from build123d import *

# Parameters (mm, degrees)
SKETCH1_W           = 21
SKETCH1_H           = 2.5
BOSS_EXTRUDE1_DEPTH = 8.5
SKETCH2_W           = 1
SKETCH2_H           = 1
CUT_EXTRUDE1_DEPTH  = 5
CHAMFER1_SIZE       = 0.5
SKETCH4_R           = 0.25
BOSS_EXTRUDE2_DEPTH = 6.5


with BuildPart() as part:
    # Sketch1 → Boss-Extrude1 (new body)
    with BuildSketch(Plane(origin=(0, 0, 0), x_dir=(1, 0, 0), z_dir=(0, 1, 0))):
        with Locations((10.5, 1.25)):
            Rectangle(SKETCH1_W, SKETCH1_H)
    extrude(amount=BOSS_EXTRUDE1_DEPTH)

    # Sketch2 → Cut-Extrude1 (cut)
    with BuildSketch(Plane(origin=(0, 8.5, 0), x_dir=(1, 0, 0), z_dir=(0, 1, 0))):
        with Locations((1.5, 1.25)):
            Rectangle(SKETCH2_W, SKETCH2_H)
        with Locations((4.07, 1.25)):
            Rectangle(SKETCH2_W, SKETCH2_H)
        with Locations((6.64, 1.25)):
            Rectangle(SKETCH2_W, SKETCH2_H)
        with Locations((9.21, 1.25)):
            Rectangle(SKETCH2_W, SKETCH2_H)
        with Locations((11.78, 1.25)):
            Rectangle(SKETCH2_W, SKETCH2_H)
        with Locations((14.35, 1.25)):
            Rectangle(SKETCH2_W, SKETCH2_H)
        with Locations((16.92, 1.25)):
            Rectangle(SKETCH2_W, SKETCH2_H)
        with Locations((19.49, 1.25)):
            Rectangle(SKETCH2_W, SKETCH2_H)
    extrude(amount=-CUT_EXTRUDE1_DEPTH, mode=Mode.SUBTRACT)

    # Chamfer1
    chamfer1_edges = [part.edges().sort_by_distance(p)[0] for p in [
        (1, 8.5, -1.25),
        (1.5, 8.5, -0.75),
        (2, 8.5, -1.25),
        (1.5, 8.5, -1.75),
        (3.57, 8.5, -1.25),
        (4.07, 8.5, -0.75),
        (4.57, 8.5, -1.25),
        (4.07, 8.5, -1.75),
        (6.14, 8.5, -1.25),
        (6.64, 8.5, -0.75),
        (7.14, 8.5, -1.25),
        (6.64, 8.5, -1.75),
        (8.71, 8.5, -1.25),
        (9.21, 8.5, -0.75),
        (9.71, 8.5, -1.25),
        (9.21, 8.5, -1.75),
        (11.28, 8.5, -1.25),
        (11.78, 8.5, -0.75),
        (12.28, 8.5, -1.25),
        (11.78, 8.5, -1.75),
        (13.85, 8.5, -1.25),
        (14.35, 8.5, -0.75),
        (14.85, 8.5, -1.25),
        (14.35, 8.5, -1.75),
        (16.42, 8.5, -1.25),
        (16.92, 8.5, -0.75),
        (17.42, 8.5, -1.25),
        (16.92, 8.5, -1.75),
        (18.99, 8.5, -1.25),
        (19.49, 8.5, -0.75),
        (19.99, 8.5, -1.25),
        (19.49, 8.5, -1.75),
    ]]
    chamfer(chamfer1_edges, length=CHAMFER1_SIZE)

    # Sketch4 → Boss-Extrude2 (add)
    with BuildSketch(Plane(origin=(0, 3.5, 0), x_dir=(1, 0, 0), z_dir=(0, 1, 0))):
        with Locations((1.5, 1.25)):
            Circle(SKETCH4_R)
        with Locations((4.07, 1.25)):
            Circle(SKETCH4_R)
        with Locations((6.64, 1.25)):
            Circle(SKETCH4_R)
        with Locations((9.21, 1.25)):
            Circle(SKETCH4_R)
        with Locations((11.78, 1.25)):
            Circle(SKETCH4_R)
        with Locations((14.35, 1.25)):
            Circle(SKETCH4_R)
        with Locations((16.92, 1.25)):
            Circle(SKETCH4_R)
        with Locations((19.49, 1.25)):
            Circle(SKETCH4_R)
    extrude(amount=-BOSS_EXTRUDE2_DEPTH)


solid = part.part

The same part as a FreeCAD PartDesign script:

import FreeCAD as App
import Part
import Sketcher
Q = App.Units.Quantity


def edges_at(feature, points):
    """Names of the edges that pass closest to the given points."""
    edges = feature.Shape.Edges
    near = lambda p: min(range(len(edges)), key=lambda i: edges[i].distToShape(Part.Vertex(*p))[0])
    return sorted({f"Edge{near(p) + 1}" for p in points})


def add_polygon(sketch, points):
    """Adds a closed chain of lines whose ends are joined by coincident constraints."""
    first, n = sketch.GeometryCount, len(points)
    for a, b in zip(points, points[1:] + points[:1]):
        sketch.addGeometry(Part.LineSegment(App.Vector(*a, 0), App.Vector(*b, 0)), False)
    for i in range(n):
        sketch.addConstraint(Sketcher.Constraint("Coincident", first + i, 2, first + (i + 1) % n, 1))

doc = App.newDocument("Part")
body = doc.addObject("PartDesign::Body", "Body")

sketch1 = body.newObject("Sketcher::SketchObject", "Sketch")
sketch1.AttachmentSupport = (doc.getObject("XZ_Plane"), [""])
sketch1.MapMode = "FlatFace"
add_polygon(sketch1, [(0, -2.5), (0, 0), (21, 0), (21, -2.5)])
sketch1.addConstraint(Sketcher.Constraint("Vertical", 0))
sketch1.addConstraint(Sketcher.Constraint("Horizontal", 1))
sketch1.addConstraint(Sketcher.Constraint("Vertical", 2))
sketch1.addConstraint(Sketcher.Constraint("Horizontal", 3))
sketch1.addConstraint(Sketcher.Constraint("Coincident", 0, 2, -1, 1))
sketch1.addConstraint(Sketcher.Constraint("DistanceX", 1, 1, 1, 2, Q("21 mm")))
sketch1.addConstraint(Sketcher.Constraint("DistanceY", 0, 1, 0, 2, Q("2.5 mm")))
pad1 = body.newObject("PartDesign::Pad", "Pad")
pad1.Profile = sketch1
pad1.Length = 8.5
pad1.Reversed = True

sketch2 = body.newObject("Sketcher::SketchObject", "Sketch001")
sketch2.AttachmentSupport = (doc.getObject("XZ_Plane"), [""])
sketch2.MapMode = "FlatFace"
sketch2.AttachmentOffset = App.Placement(App.Vector(0, 0, -8.5), App.Rotation())
add_polygon(sketch2, [(1, -1.75), (1, -0.75), (2, -0.75), (2, -1.75)])
add_polygon(sketch2, [(3.57, -1.75), (3.57, -0.75), (4.57, -0.75), (4.57, -1.75)])
add_polygon(sketch2, [(6.14, -1.75), (6.14, -0.75), (7.14, -0.75), (7.14, -1.75)])
add_polygon(sketch2, [(8.71, -1.75), (8.71, -0.75), (9.71, -0.75), (9.71, -1.75)])
add_polygon(sketch2, [(11.28, -1.75), (11.28, -0.75), (12.28, -0.75), (12.28, -1.75)])
add_polygon(sketch2, [(13.85, -1.75), (13.85, -0.75), (14.85, -0.75), (14.85, -1.75)])
add_polygon(sketch2, [(16.42, -1.75), (16.42, -0.75), (17.42, -0.75), (17.42, -1.75)])
add_polygon(sketch2, [(18.99, -1.75), (18.99, -0.75), (19.99, -0.75), (19.99, -1.75)])
sketch2.addConstraint(Sketcher.Constraint("Vertical", 0))
sketch2.addConstraint(Sketcher.Constraint("Horizontal", 1))
sketch2.addConstraint(Sketcher.Constraint("Vertical", 2))
sketch2.addConstraint(Sketcher.Constraint("Horizontal", 3))
sketch2.addConstraint(Sketcher.Constraint("Vertical", 4))
sketch2.addConstraint(Sketcher.Constraint("Horizontal", 5))
sketch2.addConstraint(Sketcher.Constraint("Vertical", 6))
sketch2.addConstraint(Sketcher.Constraint("Horizontal", 7))
sketch2.addConstraint(Sketcher.Constraint("Vertical", 8))
sketch2.addConstraint(Sketcher.Constraint("Horizontal", 9))
sketch2.addConstraint(Sketcher.Constraint("Vertical", 10))
sketch2.addConstraint(Sketcher.Constraint("Horizontal", 11))
sketch2.addConstraint(Sketcher.Constraint("Vertical", 12))
sketch2.addConstraint(Sketcher.Constraint("Horizontal", 13))
sketch2.addConstraint(Sketcher.Constraint("Vertical", 14))
sketch2.addConstraint(Sketcher.Constraint("Horizontal", 15))
sketch2.addConstraint(Sketcher.Constraint("Vertical", 16))
sketch2.addConstraint(Sketcher.Constraint("Horizontal", 17))
sketch2.addConstraint(Sketcher.Constraint("Vertical", 18))
sketch2.addConstraint(Sketcher.Constraint("Horizontal", 19))
sketch2.addConstraint(Sketcher.Constraint("Vertical", 20))
sketch2.addConstraint(Sketcher.Constraint("Horizontal", 21))
sketch2.addConstraint(Sketcher.Constraint("Vertical", 22))
sketch2.addConstraint(Sketcher.Constraint("Horizontal", 23))
sketch2.addConstraint(Sketcher.Constraint("Vertical", 24))
sketch2.addConstraint(Sketcher.Constraint("Horizontal", 25))
sketch2.addConstraint(Sketcher.Constraint("Vertical", 26))
sketch2.addConstraint(Sketcher.Constraint("Horizontal", 27))
sketch2.addConstraint(Sketcher.Constraint("Vertical", 28))
sketch2.addConstraint(Sketcher.Constraint("Horizontal", 29))
sketch2.addConstraint(Sketcher.Constraint("Vertical", 30))
sketch2.addConstraint(Sketcher.Constraint("Horizontal", 31))
sketch2.addConstraint(Sketcher.Constraint("Horizontal", 1, 2, 4, 2))
sketch2.addConstraint(Sketcher.Constraint("Horizontal", 3, 2, 6, 2))
sketch2.addConstraint(Sketcher.Constraint("Horizontal", 5, 2, 8, 2))
sketch2.addConstraint(Sketcher.Constraint("Horizontal", 7, 2, 10, 2))
sketch2.addConstraint(Sketcher.Constraint("Horizontal", 9, 2, 12, 2))
sketch2.addConstraint(Sketcher.Constraint("Horizontal", 11, 2, 14, 2))
sketch2.addConstraint(Sketcher.Constraint("Horizontal", 13, 2, 16, 2))
sketch2.addConstraint(Sketcher.Constraint("Horizontal", 15, 2, 18, 2))
sketch2.addConstraint(Sketcher.Constraint("Horizontal", 17, 2, 20, 2))
sketch2.addConstraint(Sketcher.Constraint("Horizontal", 19, 2, 22, 2))
sketch2.addConstraint(Sketcher.Constraint("Horizontal", 21, 2, 24, 2))
sketch2.addConstraint(Sketcher.Constraint("Horizontal", 23, 2, 26, 2))
sketch2.addConstraint(Sketcher.Constraint("Horizontal", 25, 2, 28, 2))
sketch2.addConstraint(Sketcher.Constraint("Horizontal", 27, 2, 30, 2))
sketch2.addConstraint(Sketcher.Constraint("Equal", 3, 5))
sketch2.addConstraint(Sketcher.Constraint("Equal", 7, 9))
sketch2.addConstraint(Sketcher.Constraint("Equal", 11, 13))
sketch2.addConstraint(Sketcher.Constraint("Equal", 15, 17))
sketch2.addConstraint(Sketcher.Constraint("Equal", 19, 21))
sketch2.addConstraint(Sketcher.Constraint("Equal", 23, 25))
sketch2.addConstraint(Sketcher.Constraint("Equal", 27, 29))
sketch2.addConstraint(Sketcher.Constraint("Equal", 31, 0))
sketch2.addConstraint(Sketcher.Constraint("DistanceX", 1, 1, 1, 2, Q("1 mm")))
sketch2.addConstraint(Sketcher.Constraint("DistanceX", -1, 1, 0, 2, Q("1 mm")))
sketch2.addConstraint(Sketcher.Constraint("DistanceY", 0, 2, -1, 1, Q("0.75 mm")))
sketch2.addConstraint(Sketcher.Constraint("DistanceX", -1, 1, 4, 2, Q("3.57 mm")))
sketch2.addConstraint(Sketcher.Constraint("DistanceX", -1, 1, 8, 2, Q("6.14 mm")))
sketch2.addConstraint(Sketcher.Constraint("DistanceX", -1, 1, 12, 2, Q("8.71 mm")))
sketch2.addConstraint(Sketcher.Constraint("DistanceX", -1, 1, 16, 2, Q("11.28 mm")))
sketch2.addConstraint(Sketcher.Constraint("DistanceX", -1, 1, 20, 2, Q("13.85 mm")))
sketch2.addConstraint(Sketcher.Constraint("DistanceX", -1, 1, 24, 2, Q("16.42 mm")))
sketch2.addConstraint(Sketcher.Constraint("DistanceX", -1, 1, 28, 2, Q("18.99 mm")))
pocket1 = body.newObject("PartDesign::Pocket", "Pocket")
pocket1.Profile = sketch2
pocket1.Length = 5
pocket1.Reversed = True
doc.recompute()

chamfer = body.newObject("PartDesign::Chamfer", "Chamfer")
chamfer.Base = (pocket1, edges_at(pocket1, [
    (1, 8.5, -1.25),
    (1.5, 8.5, -0.75),
    (2, 8.5, -1.25),
    (1.5, 8.5, -1.75),
    (3.57, 8.5, -1.25),
    (4.07, 8.5, -0.75),
    (4.57, 8.5, -1.25),
    (4.07, 8.5, -1.75),
    (6.14, 8.5, -1.25),
    (6.64, 8.5, -0.75),
    (7.14, 8.5, -1.25),
    (6.64, 8.5, -1.75),
    (8.71, 8.5, -1.25),
    (9.21, 8.5, -0.75),
    (9.71, 8.5, -1.25),
    (9.21, 8.5, -1.75),
    (11.28, 8.5, -1.25),
    (11.78, 8.5, -0.75),
    (12.28, 8.5, -1.25),
    (11.78, 8.5, -1.75),
    (13.85, 8.5, -1.25),
    (14.35, 8.5, -0.75),
    (14.85, 8.5, -1.25),
    (14.35, 8.5, -1.75),
    (16.42, 8.5, -1.25),
    (16.92, 8.5, -0.75),
    (17.42, 8.5, -1.25),
    (16.92, 8.5, -1.75),
    (18.99, 8.5, -1.25),
    (19.49, 8.5, -0.75),
    (19.99, 8.5, -1.25),
    (19.49, 8.5, -1.75),
]))
chamfer.Size = 0.5

sketch3 = body.newObject("Sketcher::SketchObject", "Sketch002")
sketch3.AttachmentSupport = (doc.getObject("XZ_Plane"), [""])
sketch3.MapMode = "FlatFace"
sketch3.AttachmentOffset = App.Placement(App.Vector(0, 0, -3.5), App.Rotation())
sketch3.addGeometry(Part.Circle(App.Vector(1.5, -1.25, 0), App.Vector(0, 0, 1), 0.25), False)
sketch3.addGeometry(Part.Circle(App.Vector(4.07, -1.25, 0), App.Vector(0, 0, 1), 0.25), False)
sketch3.addGeometry(Part.Circle(App.Vector(6.64, -1.25, 0), App.Vector(0, 0, 1), 0.25), False)
sketch3.addGeometry(Part.Circle(App.Vector(9.21, -1.25, 0), App.Vector(0, 0, 1), 0.25), False)
sketch3.addGeometry(Part.Circle(App.Vector(11.78, -1.25, 0), App.Vector(0, 0, 1), 0.25), False)
sketch3.addGeometry(Part.Circle(App.Vector(14.35, -1.25, 0), App.Vector(0, 0, 1), 0.25), False)
sketch3.addGeometry(Part.Circle(App.Vector(16.92, -1.25, 0), App.Vector(0, 0, 1), 0.25), False)
sketch3.addGeometry(Part.Circle(App.Vector(19.49, -1.25, 0), App.Vector(0, 0, 1), 0.25), False)
sketch3.addConstraint(Sketcher.Constraint("Equal", 0, 1))
sketch3.addConstraint(Sketcher.Constraint("Equal", 1, 2))
sketch3.addConstraint(Sketcher.Constraint("Equal", 2, 3))
sketch3.addConstraint(Sketcher.Constraint("Equal", 3, 4))
sketch3.addConstraint(Sketcher.Constraint("Equal", 4, 5))
sketch3.addConstraint(Sketcher.Constraint("Equal", 5, 6))
sketch3.addConstraint(Sketcher.Constraint("Equal", 6, 7))
sketch3.addConstraint(Sketcher.Constraint("Horizontal", 0, 3, 1, 3))
sketch3.addConstraint(Sketcher.Constraint("Horizontal", 1, 3, 2, 3))
sketch3.addConstraint(Sketcher.Constraint("Horizontal", 2, 3, 3, 3))
sketch3.addConstraint(Sketcher.Constraint("Horizontal", 3, 3, 4, 3))
sketch3.addConstraint(Sketcher.Constraint("Horizontal", 4, 3, 5, 3))
sketch3.addConstraint(Sketcher.Constraint("Horizontal", 5, 3, 6, 3))
sketch3.addConstraint(Sketcher.Constraint("Horizontal", 6, 3, 7, 3))
sketch3.addConstraint(Sketcher.Constraint("Diameter", 0, Q("0.5 mm")))
sketch3.addConstraint(Sketcher.Constraint("DistanceX", -1, 1, 0, 3, Q("1.5 mm")))
sketch3.addConstraint(Sketcher.Constraint("DistanceY", 0, 3, -1, 1, Q("1.25 mm")))
sketch3.addConstraint(Sketcher.Constraint("DistanceX", -1, 1, 1, 3, Q("4.07 mm")))
sketch3.addConstraint(Sketcher.Constraint("DistanceX", -1, 1, 2, 3, Q("6.64 mm")))
sketch3.addConstraint(Sketcher.Constraint("DistanceX", -1, 1, 3, 3, Q("9.21 mm")))
sketch3.addConstraint(Sketcher.Constraint("DistanceX", -1, 1, 4, 3, Q("11.78 mm")))
sketch3.addConstraint(Sketcher.Constraint("DistanceX", -1, 1, 5, 3, Q("14.35 mm")))
sketch3.addConstraint(Sketcher.Constraint("DistanceX", -1, 1, 6, 3, Q("16.92 mm")))
sketch3.addConstraint(Sketcher.Constraint("DistanceX", -1, 1, 7, 3, Q("19.49 mm")))
pad2 = body.newObject("PartDesign::Pad", "Pad001")
pad2.Profile = sketch3
pad2.Length = 6.5

doc.recompute()
